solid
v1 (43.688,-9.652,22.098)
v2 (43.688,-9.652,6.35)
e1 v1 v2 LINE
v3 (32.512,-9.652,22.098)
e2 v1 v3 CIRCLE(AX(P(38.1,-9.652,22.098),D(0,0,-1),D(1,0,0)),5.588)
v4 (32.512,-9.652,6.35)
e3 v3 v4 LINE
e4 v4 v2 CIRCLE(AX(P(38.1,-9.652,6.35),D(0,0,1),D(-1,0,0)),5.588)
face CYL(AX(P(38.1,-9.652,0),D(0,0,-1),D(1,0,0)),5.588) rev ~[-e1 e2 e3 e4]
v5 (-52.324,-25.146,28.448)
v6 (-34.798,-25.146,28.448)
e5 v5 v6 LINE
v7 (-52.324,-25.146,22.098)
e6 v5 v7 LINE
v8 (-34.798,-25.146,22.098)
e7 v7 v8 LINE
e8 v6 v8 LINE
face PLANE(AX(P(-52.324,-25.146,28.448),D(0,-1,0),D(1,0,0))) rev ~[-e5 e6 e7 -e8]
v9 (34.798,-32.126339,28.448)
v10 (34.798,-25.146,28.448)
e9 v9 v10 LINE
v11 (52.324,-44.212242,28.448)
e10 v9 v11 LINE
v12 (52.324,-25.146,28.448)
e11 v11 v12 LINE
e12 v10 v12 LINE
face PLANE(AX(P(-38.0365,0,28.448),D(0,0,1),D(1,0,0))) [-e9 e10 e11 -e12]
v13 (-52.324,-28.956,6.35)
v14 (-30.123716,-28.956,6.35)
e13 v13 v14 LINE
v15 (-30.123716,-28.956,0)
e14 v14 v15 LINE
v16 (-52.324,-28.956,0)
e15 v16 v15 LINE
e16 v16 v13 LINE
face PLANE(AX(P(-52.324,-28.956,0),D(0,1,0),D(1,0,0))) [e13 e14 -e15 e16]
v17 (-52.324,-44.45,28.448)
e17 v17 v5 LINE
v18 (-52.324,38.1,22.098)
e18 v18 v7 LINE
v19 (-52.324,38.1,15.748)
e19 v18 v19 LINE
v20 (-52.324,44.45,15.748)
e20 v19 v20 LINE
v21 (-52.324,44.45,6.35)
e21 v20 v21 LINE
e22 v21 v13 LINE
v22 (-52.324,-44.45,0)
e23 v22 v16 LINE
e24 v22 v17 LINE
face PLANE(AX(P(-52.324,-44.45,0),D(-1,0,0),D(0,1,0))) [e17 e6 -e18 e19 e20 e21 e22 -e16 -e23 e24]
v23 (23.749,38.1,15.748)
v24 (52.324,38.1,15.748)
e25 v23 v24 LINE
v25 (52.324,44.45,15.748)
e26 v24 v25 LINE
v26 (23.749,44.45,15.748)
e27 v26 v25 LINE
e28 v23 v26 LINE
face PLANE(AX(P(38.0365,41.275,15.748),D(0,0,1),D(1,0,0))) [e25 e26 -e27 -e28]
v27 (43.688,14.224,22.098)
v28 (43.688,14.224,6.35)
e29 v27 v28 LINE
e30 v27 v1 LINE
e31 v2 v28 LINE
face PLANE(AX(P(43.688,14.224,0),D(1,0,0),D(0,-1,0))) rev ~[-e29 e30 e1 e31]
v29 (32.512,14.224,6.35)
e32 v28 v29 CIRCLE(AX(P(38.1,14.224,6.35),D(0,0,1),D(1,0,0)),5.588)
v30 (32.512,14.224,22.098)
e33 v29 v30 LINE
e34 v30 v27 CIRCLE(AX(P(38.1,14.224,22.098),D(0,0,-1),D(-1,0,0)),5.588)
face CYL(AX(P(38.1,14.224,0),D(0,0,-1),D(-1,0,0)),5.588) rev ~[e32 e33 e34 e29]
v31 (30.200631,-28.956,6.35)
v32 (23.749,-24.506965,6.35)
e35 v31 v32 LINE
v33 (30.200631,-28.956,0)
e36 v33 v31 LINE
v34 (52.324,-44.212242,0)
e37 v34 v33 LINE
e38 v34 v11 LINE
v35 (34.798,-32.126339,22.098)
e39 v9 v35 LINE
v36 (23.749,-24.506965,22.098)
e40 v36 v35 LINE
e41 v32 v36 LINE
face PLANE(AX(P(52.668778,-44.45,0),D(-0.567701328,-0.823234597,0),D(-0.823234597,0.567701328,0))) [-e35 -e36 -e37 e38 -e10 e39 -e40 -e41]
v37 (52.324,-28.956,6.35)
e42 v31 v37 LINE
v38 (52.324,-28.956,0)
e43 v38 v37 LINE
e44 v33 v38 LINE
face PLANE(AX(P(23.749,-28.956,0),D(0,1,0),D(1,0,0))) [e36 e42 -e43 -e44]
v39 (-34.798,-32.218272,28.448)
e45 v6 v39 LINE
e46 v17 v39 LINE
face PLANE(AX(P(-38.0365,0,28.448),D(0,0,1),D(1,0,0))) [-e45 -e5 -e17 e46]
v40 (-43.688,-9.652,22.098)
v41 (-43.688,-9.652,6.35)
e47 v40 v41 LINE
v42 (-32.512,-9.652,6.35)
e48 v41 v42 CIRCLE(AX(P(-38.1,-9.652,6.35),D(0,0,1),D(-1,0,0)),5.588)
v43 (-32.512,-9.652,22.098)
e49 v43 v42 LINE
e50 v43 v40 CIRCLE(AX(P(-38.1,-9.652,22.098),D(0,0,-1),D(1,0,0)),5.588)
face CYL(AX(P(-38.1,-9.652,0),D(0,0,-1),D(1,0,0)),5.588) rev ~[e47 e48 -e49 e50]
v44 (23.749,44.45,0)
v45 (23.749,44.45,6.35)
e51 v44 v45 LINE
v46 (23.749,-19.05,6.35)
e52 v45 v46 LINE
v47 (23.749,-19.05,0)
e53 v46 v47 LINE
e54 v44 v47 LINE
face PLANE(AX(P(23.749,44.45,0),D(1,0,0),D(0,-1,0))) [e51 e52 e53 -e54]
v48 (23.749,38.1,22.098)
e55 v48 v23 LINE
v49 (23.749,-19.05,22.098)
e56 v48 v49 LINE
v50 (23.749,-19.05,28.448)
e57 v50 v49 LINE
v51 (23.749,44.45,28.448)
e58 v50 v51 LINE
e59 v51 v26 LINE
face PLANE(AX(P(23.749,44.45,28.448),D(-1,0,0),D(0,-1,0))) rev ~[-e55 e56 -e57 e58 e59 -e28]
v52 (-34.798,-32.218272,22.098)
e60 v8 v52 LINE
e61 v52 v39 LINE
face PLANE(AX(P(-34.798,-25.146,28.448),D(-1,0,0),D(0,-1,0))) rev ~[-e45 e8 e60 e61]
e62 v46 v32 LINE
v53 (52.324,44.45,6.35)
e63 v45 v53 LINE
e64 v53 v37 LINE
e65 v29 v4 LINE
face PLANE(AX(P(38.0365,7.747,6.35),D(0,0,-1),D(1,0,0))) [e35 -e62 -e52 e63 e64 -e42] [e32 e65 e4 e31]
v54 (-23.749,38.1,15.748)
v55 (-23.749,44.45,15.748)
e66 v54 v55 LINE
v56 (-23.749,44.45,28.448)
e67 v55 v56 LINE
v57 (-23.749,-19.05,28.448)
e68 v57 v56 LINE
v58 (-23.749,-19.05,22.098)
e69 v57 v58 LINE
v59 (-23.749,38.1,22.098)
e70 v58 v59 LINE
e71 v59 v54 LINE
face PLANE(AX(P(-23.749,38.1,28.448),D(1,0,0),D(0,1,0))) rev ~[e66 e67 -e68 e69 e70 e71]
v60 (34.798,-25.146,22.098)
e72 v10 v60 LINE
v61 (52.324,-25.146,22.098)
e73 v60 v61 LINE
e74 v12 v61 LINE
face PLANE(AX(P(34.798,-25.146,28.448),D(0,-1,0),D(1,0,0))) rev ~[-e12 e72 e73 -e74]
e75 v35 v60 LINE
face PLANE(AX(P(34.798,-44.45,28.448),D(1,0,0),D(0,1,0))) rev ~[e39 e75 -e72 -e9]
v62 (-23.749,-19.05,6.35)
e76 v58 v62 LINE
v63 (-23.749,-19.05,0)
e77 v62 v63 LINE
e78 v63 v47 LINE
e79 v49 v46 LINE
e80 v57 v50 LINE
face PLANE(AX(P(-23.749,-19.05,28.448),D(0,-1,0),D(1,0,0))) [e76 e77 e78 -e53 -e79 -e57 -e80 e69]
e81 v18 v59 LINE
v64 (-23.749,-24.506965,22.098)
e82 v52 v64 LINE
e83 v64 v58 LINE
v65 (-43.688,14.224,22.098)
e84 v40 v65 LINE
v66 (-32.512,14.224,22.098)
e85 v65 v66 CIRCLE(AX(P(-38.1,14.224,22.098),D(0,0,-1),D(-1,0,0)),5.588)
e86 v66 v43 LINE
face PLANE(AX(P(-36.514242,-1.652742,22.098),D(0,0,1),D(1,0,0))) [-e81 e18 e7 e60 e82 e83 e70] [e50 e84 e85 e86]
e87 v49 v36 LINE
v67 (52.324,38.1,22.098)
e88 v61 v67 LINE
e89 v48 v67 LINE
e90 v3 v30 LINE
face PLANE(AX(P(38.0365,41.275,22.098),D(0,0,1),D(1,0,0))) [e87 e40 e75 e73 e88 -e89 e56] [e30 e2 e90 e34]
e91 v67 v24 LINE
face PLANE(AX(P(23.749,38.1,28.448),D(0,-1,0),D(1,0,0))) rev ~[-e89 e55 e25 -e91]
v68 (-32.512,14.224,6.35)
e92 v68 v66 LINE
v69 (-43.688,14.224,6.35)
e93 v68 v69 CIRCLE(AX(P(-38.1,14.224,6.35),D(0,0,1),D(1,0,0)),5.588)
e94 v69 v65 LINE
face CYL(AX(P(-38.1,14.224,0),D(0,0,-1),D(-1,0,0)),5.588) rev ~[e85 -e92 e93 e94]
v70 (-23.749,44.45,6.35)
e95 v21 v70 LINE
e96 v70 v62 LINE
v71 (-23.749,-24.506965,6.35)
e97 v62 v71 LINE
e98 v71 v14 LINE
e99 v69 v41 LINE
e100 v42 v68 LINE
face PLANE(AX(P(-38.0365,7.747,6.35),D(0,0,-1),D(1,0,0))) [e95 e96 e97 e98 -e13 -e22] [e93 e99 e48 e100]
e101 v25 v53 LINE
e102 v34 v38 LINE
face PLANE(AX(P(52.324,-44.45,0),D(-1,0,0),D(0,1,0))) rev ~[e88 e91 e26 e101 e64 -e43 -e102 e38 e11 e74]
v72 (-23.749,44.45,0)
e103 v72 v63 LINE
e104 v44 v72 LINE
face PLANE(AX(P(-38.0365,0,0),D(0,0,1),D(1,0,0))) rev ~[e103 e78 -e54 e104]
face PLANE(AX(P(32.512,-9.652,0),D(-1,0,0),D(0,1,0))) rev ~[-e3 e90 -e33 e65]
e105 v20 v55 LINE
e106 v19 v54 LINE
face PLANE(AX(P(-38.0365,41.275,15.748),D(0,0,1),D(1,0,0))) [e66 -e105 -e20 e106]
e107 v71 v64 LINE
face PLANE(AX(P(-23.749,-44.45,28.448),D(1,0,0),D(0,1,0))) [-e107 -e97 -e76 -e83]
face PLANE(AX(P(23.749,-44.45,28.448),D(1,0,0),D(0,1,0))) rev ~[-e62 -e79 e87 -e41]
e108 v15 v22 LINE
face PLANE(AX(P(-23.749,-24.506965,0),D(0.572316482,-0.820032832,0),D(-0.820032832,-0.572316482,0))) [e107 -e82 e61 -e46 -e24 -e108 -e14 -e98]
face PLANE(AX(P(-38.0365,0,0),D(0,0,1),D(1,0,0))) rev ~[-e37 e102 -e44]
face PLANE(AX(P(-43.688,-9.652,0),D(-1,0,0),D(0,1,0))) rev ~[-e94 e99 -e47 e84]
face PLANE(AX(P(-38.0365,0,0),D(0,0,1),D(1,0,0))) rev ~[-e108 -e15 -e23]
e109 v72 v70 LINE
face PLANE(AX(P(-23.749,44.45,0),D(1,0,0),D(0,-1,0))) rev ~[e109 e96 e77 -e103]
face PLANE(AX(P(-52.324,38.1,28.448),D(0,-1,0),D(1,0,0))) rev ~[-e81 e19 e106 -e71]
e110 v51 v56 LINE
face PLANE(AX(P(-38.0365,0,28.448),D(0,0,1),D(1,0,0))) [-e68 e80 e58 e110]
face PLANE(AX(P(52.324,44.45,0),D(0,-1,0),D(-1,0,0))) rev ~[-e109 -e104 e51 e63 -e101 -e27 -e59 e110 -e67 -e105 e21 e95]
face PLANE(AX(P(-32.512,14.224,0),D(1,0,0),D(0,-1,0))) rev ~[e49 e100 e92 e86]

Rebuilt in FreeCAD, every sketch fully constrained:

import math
import FreeCAD as App
import Part
import Sketcher

V = App.Vector
Q = App.Units.Quantity


def add_polygon(sketch, points):
    """Adds a closed chain of lines whose ends are joined by coincident constraints."""
    first, n = sketch.GeometryCount, len(points)
    for a, b in zip(points, points[1:] + points[:1]):
        sketch.addGeometry(Part.LineSegment(App.Vector(*a, 0), App.Vector(*b, 0)), False)
    for i in range(n):
        sketch.addConstraint(Sketcher.Constraint("Coincident", first + i, 2, first + (i + 1) % n, 1))

doc = App.newDocument("Part")
body = doc.addObject("PartDesign::Body", "Body")

# Sketch on XY plane
sketch1 = body.newObject("Sketcher::SketchObject", "Sketch")
sketch1.AttachmentSupport = (doc.getObject("XY_Plane"), [""])
sketch1.MapMode = "FlatFace"
add_polygon(sketch1, [(-52, 44), (-52, -44), (52, -44), (52, 44)])  # lines 0-3
sketch1.addGeometry(Part.LineSegment(V(-44, -10, 0), V(-44, 14, 0)), False)  # 4
sketch1.addGeometry(Part.ArcOfCircle(Part.Circle(V(-38, 14, 0), V(0, 0, 1), 6), math.radians(0), math.radians(180)), False)  # 5
sketch1.addGeometry(Part.LineSegment(V(-33, 14, 0), V(-33, -10, 0)), False)  # 6
sketch1.addGeometry(Part.ArcOfCircle(Part.Circle(V(-38, -10, 0), V(0, 0, 1), 6), math.radians(180), math.radians(360)), False)  # 7
sketch1.addGeometry(Part.LineSegment(V(33, -10, 0), V(33, 14, 0)), False)  # 8
sketch1.addGeometry(Part.ArcOfCircle(Part.Circle(V(38, 14, 0), V(0, 0, 1), 6), math.radians(0), math.radians(180)), False)  # 9
sketch1.addGeometry(Part.LineSegment(V(44, 14, 0), V(44, -10, 0)), False)  # 10
sketch1.addGeometry(Part.ArcOfCircle(Part.Circle(V(38, -10, 0), V(0, 0, 1), 6), math.radians(180), math.radians(360)), False)  # 11
sketch1.addConstraint([
    Sketcher.Constraint("Tangent", 4, 2, 5, 2),
    Sketcher.Constraint("Tangent", 5, 1, 6, 1),
    Sketcher.Constraint("Tangent", 6, 2, 7, 2),
    Sketcher.Constraint("Tangent", 7, 1, 4, 1),
    Sketcher.Constraint("Tangent", 8, 2, 9, 2),
    Sketcher.Constraint("Tangent", 9, 1, 10, 1),
    Sketcher.Constraint("Tangent", 10, 2, 11, 2),
    Sketcher.Constraint("Tangent", 11, 1, 8, 1),
    Sketcher.Constraint("Vertical", 0),
    Sketcher.Constraint("Horizontal", 1),
    Sketcher.Constraint("Vertical", 2),
    Sketcher.Constraint("Horizontal", 3),
    Sketcher.Constraint("Vertical", 4),
    Sketcher.Constraint("Vertical", 6),
    Sketcher.Constraint("Vertical", 8),
    Sketcher.Constraint("Vertical", 10),
    Sketcher.Constraint("Equal", 7, 9),
    Sketcher.Constraint("Symmetric", 0, 2, 2, 2, -1, 1),
    Sketcher.Constraint("Symmetric", 5, 3, 9, 3, -2),
    Sketcher.Constraint("Horizontal", 7, 3, 11, 3),
    Sketcher.Constraint("Radius", 5, Q("0.22 in")),
    Sketcher.Constraint("DistanceY", 0, 2, 0, 1, Q("3.5 in")),
    Sketcher.Constraint("DistanceX", 5, 3, 9, 3, Q("3 in")),
    Sketcher.Constraint("DistanceX", 1, 1, 1, 2, Q("4.12 in")),
    Sketcher.Constraint("DistanceY", 4, 1, 4, 2, Q("0.94 in")),
    Sketcher.Constraint("DistanceY", -1, 1, 5, 3, Q("0.56 in")),
])
pad1 = body.newObject("PartDesign::Pad", "Pad")
pad1.Profile = sketch1
pad1.Length = Q("1.12 in")

# Sketch on XY plane
sketch2 = body.newObject("Sketcher::SketchObject", "Sketch001")
sketch2.AttachmentSupport = (doc.getObject("XY_Plane"), [""])
sketch2.MapMode = "FlatFace"
add_polygon(sketch2, [(-52, 44), (-52, -44), (52, -44), (52, 44)])  # lines 0-3
sketch2.addGeometry(Part.LineSegment(V(-44, -10, 0), V(-44, 14, 0)), False)  # 4
sketch2.addGeometry(Part.ArcOfCircle(Part.Circle(V(-38, 14, 0), V(0, 0, 1), 6), math.radians(0), math.radians(180)), False)  # 5
sketch2.addGeometry(Part.LineSegment(V(-33, 14, 0), V(-33, -10, 0)), False)  # 6
sketch2.addGeometry(Part.ArcOfCircle(Part.Circle(V(-38, -10, 0), V(0, 0, 1), 6), math.radians(180), math.radians(360)), False)  # 7
sketch2.addGeometry(Part.LineSegment(V(33, -10, 0), V(33, 14, 0)), False)  # 8
sketch2.addGeometry(Part.ArcOfCircle(Part.Circle(V(38, 14, 0), V(0, 0, 1), 6), math.radians(0), math.radians(180)), False)  # 9
sketch2.addGeometry(Part.LineSegment(V(44, 14, 0), V(44, -10, 0)), False)  # 10
sketch2.addGeometry(Part.ArcOfCircle(Part.Circle(V(38, -10, 0), V(0, 0, 1), 6), math.radians(180), math.radians(360)), False)  # 11
sketch2.addConstraint([
    Sketcher.Constraint("Tangent", 4, 2, 5, 2),
    Sketcher.Constraint("Tangent", 5, 1, 6, 1),
    Sketcher.Constraint("Tangent", 6, 2, 7, 2),
    Sketcher.Constraint("Tangent", 7, 1, 4, 1),
    Sketcher.Constraint("Tangent", 8, 2, 9, 2),
    Sketcher.Constraint("Tangent", 9, 1, 10, 1),
    Sketcher.Constraint("Tangent", 10, 2, 11, 2),
    Sketcher.Constraint("Tangent", 11, 1, 8, 1),
    Sketcher.Constraint("Vertical", 0),
    Sketcher.Constraint("Horizontal", 1),
    Sketcher.Constraint("Vertical", 2),
    Sketcher.Constraint("Horizontal", 3),
    Sketcher.Constraint("Vertical", 4),
    Sketcher.Constraint("Vertical", 6),
    Sketcher.Constraint("Vertical", 8),
    Sketcher.Constraint("Vertical", 10),
    Sketcher.Constraint("Equal", 7, 9),
    Sketcher.Constraint("Symmetric", 0, 2, 2, 2, -1, 1),
    Sketcher.Constraint("Symmetric", 5, 3, 9, 3, -2),
    Sketcher.Constraint("Horizontal", 7, 3, 11, 3),
    Sketcher.Constraint("Radius", 5, Q("0.22 in")),
    Sketcher.Constraint("DistanceY", 0, 2, 0, 1, Q("3.5 in")),
    Sketcher.Constraint("DistanceX", 5, 3, 9, 3, Q("3 in")),
    Sketcher.Constraint("DistanceX", 1, 1, 1, 2, Q("4.12 in")),
    Sketcher.Constraint("DistanceY", 4, 1, 4, 2, Q("0.94 in")),
    Sketcher.Constraint("DistanceY", -1, 1, 5, 3, Q("0.56 in")),
])
pad2 = body.newObject("PartDesign::Pad", "Pad001")
pad2.Profile = sketch2
pad2.Length = Q("1 in")

# Sketch on XY plane
sketch3 = body.newObject("Sketcher::SketchObject", "Sketch002")
sketch3.AttachmentSupport = (doc.getObject("XY_Plane"), [""])
sketch3.MapMode = "FlatFace"
add_polygon(sketch3, [(24, -29), (24, 44), (52, 44), (52, -29)])  # lines 0-3
sketch3.addGeometry(Part.LineSegment(V(44, -10, 0), V(44, 14, 0)), False)  # 4
sketch3.addGeometry(Part.ArcOfCircle(Part.Circle(V(38, 14, 0), V(0, 0, 1), 6), math.radians(0), math.radians(180)), False)  # 5
sketch3.addGeometry(Part.LineSegment(V(33, 14, 0), V(33, -10, 0)), False)  # 6
sketch3.addGeometry(Part.ArcOfCircle(Part.Circle(V(38, -10, 0), V(0, 0, 1), 6), math.radians(180), math.radians(360)), False)  # 7
add_polygon(sketch3, [(-52, -29), (-52, 44), (-24, 44), (-24, -29)])  # lines 8-11
sketch3.addGeometry(Part.ArcOfCircle(Part.Circle(V(-38, -10, 0), V(0, 0, 1), 6), math.radians(180), math.radians(360)), False)  # 12
sketch3.addGeometry(Part.LineSegment(V(-33, -10, 0), V(-33, 14, 0)), False)  # 13
sketch3.addGeometry(Part.ArcOfCircle(Part.Circle(V(-38, 14, 0), V(0, 0, 1), 6), math.radians(0), math.radians(180)), False)  # 14
sketch3.addGeometry(Part.LineSegment(V(-44, 14, 0), V(-44, -10, 0)), False)  # 15
sketch3.addConstraint([
    Sketcher.Constraint("Tangent", 4, 2, 5, 1),
    Sketcher.Constraint("Tangent", 5, 2, 6, 1),
    Sketcher.Constraint("Tangent", 6, 2, 7, 1),
    Sketcher.Constraint("Tangent", 7, 2, 4, 1),
    Sketcher.Constraint("Tangent", 12, 2, 13, 1),
    Sketcher.Constraint("Tangent", 13, 2, 14, 1),
    Sketcher.Constraint("Tangent", 14, 2, 15, 1),
    Sketcher.Constraint("Tangent", 15, 2, 12, 1),
    Sketcher.Constraint("Vertical", 0),
    Sketcher.Constraint("Horizontal", 1),
    Sketcher.Constraint("Vertical", 2),
    Sketcher.Constraint("Horizontal", 3),
    Sketcher.Constraint("Vertical", 4),
    Sketcher.Constraint("Vertical", 6),
    Sketcher.Constraint("Vertical", 8),
    Sketcher.Constraint("Horizontal", 9),
    Sketcher.Constraint("Vertical", 10),
    Sketcher.Constraint("Horizontal", 11),
    Sketcher.Constraint("Vertical", 13),
    Sketcher.Constraint("Vertical", 15),
    Sketcher.Constraint("Equal", 7, 12),
    Sketcher.Constraint("Symmetric", 7, 3, 12, 3, -2),
    Sketcher.Constraint("Symmetric", 1, 2, 8, 2, -2),
    Sketcher.Constraint("Symmetric", 3, 2, 10, 2, -2),
    Sketcher.Constraint("Horizontal", 5, 3, 14, 3),
    Sketcher.Constraint("Radius", 5, Q("0.22 in")),
    Sketcher.Constraint("DistanceX", 12, 3, 7, 3, Q("3 in")),
    Sketcher.Constraint("DistanceY", 0, 1, 0, 2, Q("2.89 in")),
    Sketcher.Constraint("DistanceY", 4, 1, 4, 2, Q("0.94 in")),
    Sketcher.Constraint("DistanceY", 2, 2, 5, 3, Q("1.7 in")),
    Sketcher.Constraint("DistanceX", 1, 1, 1, 2, Q("1.125 in")),
    Sketcher.Constraint("DistanceY", -1, 1, 5, 3, Q("0.56 in")),
    Sketcher.Constraint("DistanceX", -1, 1, 1, 2, Q("2.06 in")),
])
pocket1 = body.newObject("PartDesign::Pocket", "Pocket")
pocket1.Profile = sketch3
pocket1.Length = Q("0.25 in")
pocket1.Reversed = True

# Sketch on XY plane
sketch4 = body.newObject("Sketcher::SketchObject", "Sketch003")
sketch4.AttachmentSupport = (doc.getObject("XY_Plane"), [""])
sketch4.MapMode = "FlatFace"
sketch4.AttachmentOffset = App.Placement(V(0, 0, 1.12 * 25.4), App.Rotation())
add_polygon(sketch4, [(24, 44), (24, -44), (35, -44), (35, -25), (52, -25), (52, 44)])  # lines 0-5
sketch4.addGeometry(Part.LineSegment(V(44, 14, 0), V(44, -10, 0)), False)  # 6
sketch4.addGeometry(Part.ArcOfCircle(Part.Circle(V(38, -10, 0), V(0, 0, 1), 6), math.radians(180), math.radians(360)), False)  # 7
sketch4.addGeometry(Part.LineSegment(V(33, -10, 0), V(33, 14, 0)), False)  # 8
sketch4.addGeometry(Part.ArcOfCircle(Part.Circle(V(38, 14, 0), V(0, 0, 1), 6), math.radians(0), math.radians(180)), False)  # 9
add_polygon(sketch4, [(-24, -44), (-24, 44), (-52, 44), (-52, -25), (-35, -25), (-35, -44)])  # lines 10-15
sketch4.addGeometry(Part.ArcOfCircle(Part.Circle(V(-38, -10, 0), V(0, 0, 1), 6), math.radians(180), math.radians(360)), False)  # 16
sketch4.addGeometry(Part.LineSegment(V(-44, -10, 0), V(-44, 14, 0)), False)  # 17
sketch4.addGeometry(Part.ArcOfCircle(Part.Circle(V(-38, 14, 0), V(0, 0, 1), 6), math.radians(0), math.radians(180)), False)  # 18
sketch4.addGeometry(Part.LineSegment(V(-33, 14, 0), V(-33, -10, 0)), False)  # 19
sketch4.addConstraint([
    Sketcher.Constraint("Tangent", 6, 2, 7, 2),
    Sketcher.Constraint("Tangent", 7, 1, 8, 1),
    Sketcher.Constraint("Tangent", 8, 2, 9, 2),
    Sketcher.Constraint("Tangent", 9, 1, 6, 1),
    Sketcher.Constraint("Tangent", 16, 1, 17, 1),
    Sketcher.Constraint("Tangent", 17, 2, 18, 2),
    Sketcher.Constraint("Tangent", 18, 1, 19, 1),
    Sketcher.Constraint("Tangent", 19, 2, 16, 2),
    Sketcher.Constraint("Vertical", 0),
    Sketcher.Constraint("Horizontal", 1),
    Sketcher.Constraint("Vertical", 2),
    Sketcher.Constraint("Horizontal", 3),
    Sketcher.Constraint("Vertical", 4),
    Sketcher.Constraint("Horizontal", 5),
    Sketcher.Constraint("Vertical", 6),
    Sketcher.Constraint("Vertical", 8),
    Sketcher.Constraint("Vertical", 10),
    Sketcher.Constraint("Horizontal", 11),
    Sketcher.Constraint("Vertical", 12),
    Sketcher.Constraint("Horizontal", 13),
    Sketcher.Constraint("Vertical", 14),
    Sketcher.Constraint("Horizontal", 15),
    Sketcher.Constraint("Vertical", 17),
    Sketcher.Constraint("Vertical", 19),
    Sketcher.Constraint("Equal", 9, 16),
    Sketcher.Constraint("Symmetric", 0, 2, 10, 2, -1, 1),
    Sketcher.Constraint("Symmetric", 7, 3, 16, 3, -2),
    Sketcher.Constraint("Symmetric", 4, 2, 11, 2, -2),
    Sketcher.Constraint("Symmetric", 2, 2, 13, 2, -2),
    Sketcher.Constraint("Horizontal", 9, 3, 18, 3),
    Sketcher.Constraint("Horizontal", 1, 2, 14, 2),
    Sketcher.Constraint("Radius", 7, Q("0.22 in")),
    Sketcher.Constraint("DistanceY", 0, 2, 0, 1, Q("3.5 in")),
    Sketcher.Constraint("DistanceX", 16, 3, 7, 3, Q("3 in")),
    Sketcher.Constraint("DistanceX", 3, 1, 3, 2, Q("0.69 in")),
    Sketcher.Constraint("DistanceY", 2, 1, 2, 2, Q("0.76 in")),
    Sketcher.Constraint("DistanceY", 6, 2, 6, 1, Q("0.94 in")),
    Sketcher.Constraint("DistanceX", 1, 1, 1, 2, Q("0.435 in")),
    Sketcher.Constraint("DistanceY", 7, 3, -1, 1, Q("0.38 in")),
    Sketcher.Constraint("DistanceX", -1, 1, 1, 2, Q("1.37 in")),
])
pocket2 = body.newObject("PartDesign::Pocket", "Pocket001")
pocket2.Profile = sketch4
pocket2.Length = Q("0.25 in")

# Sketch on XY plane
sketch5 = body.newObject("Sketcher::SketchObject", "Sketch004")
sketch5.AttachmentSupport = (doc.getObject("XY_Plane"), [""])
sketch5.MapMode = "FlatFace"
sketch5.AttachmentOffset = App.Placement(V(0, 0, 1.12 * 25.4), App.Rotation())
add_polygon(sketch5, [(-52, 44), (-52, 38), (-24, 38), (-24, 44)])  # lines 0-3
add_polygon(sketch5, [(24, 44), (24, 38), (52, 38), (52, 44)])  # lines 4-7
sketch5.addConstraint([
    Sketcher.Constraint("Vertical", 0),
    Sketcher.Constraint("Horizontal", 1),
    Sketcher.Constraint("Vertical", 2),
    Sketcher.Constraint("Horizontal", 3),
    Sketcher.Constraint("Vertical", 4),
    Sketcher.Constraint("Horizontal", 5),
    Sketcher.Constraint("Vertical", 6),
    Sketcher.Constraint("Horizontal", 7),
    Sketcher.Constraint("Symmetric", 1, 2, 4, 2, -2),
    Sketcher.Constraint("Symmetric", 3, 2, 6, 2, -2),
    Sketcher.Constraint("DistanceY", 0, 2, 0, 1, Q("0.25 in")),
    Sketcher.Constraint("DistanceY", -1, 1, 0, 2, Q("1.5 in")),
    Sketcher.Constraint("DistanceX", 1, 1, 1, 2, Q("1.125 in")),
    Sketcher.Constraint("DistanceX", 0, 2, -1, 1, Q("2.06 in")),
])
pocket3 = body.newObject("PartDesign::Pocket", "Pocket002")
pocket3.Profile = sketch5
pocket3.Length = Q("0.5 in")

# Sketch on XY plane
sketch6 = body.newObject("Sketcher::SketchObject", "Sketch005")
sketch6.AttachmentSupport = (doc.getObject("XY_Plane"), [""])
sketch6.MapMode = "FlatFace"
sketch6.AttachmentOffset = App.Placement(V(0, 0, 1.12 * 25.4), App.Rotation())
add_polygon(sketch6, [(-24, -19), (-24, -44), (24, -44), (24, -19)])  # lines 0-3
sketch6.addConstraint([
    Sketcher.Constraint("Vertical", 0),
    Sketcher.Constraint("Horizontal", 1),
    Sketcher.Constraint("Vertical", 2),
    Sketcher.Constraint("Horizontal", 3),
    Sketcher.Constraint("DistanceY", 0, 2, 0, 1, Q("1 in")),
    Sketcher.Constraint("DistanceX", 1, 1, 1, 2, Q("1.87 in")),
    Sketcher.Constraint("DistanceY", 0, 2, -1, 1, Q("1.75 in")),
    Sketcher.Constraint("DistanceX", 0, 2, -1, 1, Q("0.935 in")),
])
pocket4 = body.newObject("PartDesign::Pocket", "Pocket003")
pocket4.Profile = sketch6
pocket4.Type = "ThroughAll"

# Sketch on XY plane
sketch7 = body.newObject("Sketcher::SketchObject", "Sketch006")
sketch7.AttachmentSupport = (doc.getObject("XY_Plane"), [""])
sketch7.MapMode = "FlatFace"
add_polygon(sketch7, [(-24, -25), (-52, -44), (-24, -44)])  # lines 0-2
add_polygon(sketch7, [(24, -44), (53, -44), (24, -25)])  # lines 3-5
sketch7.addConstraint([
    Sketcher.Constraint("Horizontal", 1),
    Sketcher.Constraint("Vertical", 2),
    Sketcher.Constraint("Horizontal", 3),
    Sketcher.Constraint("Vertical", 5),
    Sketcher.Constraint("Symmetric", 2, 2, 4, 2, -2),
    Sketcher.Constraint("Horizontal", 1, 2, 3, 2),
    Sketcher.Constraint("DistanceX", 1, 1, 1, 2, Q("1.125 in")),
    Sketcher.Constraint("DistanceX", 0, 2, -1, 1, Q("2.06 in")),
    Sketcher.Constraint("DistanceY", 0, 2, -1, 1, Q("1.75 in")),
    Sketcher.Constraint("DistanceX", 3, 1, 3, 2, Q("28.919778 mm")),
    Sketcher.Constraint("Distance", 4, Q("35.129449 mm")),
])
pocket5 = body.newObject("PartDesign::Pocket", "Pocket004")
pocket5.Profile = sketch7
pocket5.Type = "ThroughAll"
pocket5.Reversed = True

doc.recompute()
